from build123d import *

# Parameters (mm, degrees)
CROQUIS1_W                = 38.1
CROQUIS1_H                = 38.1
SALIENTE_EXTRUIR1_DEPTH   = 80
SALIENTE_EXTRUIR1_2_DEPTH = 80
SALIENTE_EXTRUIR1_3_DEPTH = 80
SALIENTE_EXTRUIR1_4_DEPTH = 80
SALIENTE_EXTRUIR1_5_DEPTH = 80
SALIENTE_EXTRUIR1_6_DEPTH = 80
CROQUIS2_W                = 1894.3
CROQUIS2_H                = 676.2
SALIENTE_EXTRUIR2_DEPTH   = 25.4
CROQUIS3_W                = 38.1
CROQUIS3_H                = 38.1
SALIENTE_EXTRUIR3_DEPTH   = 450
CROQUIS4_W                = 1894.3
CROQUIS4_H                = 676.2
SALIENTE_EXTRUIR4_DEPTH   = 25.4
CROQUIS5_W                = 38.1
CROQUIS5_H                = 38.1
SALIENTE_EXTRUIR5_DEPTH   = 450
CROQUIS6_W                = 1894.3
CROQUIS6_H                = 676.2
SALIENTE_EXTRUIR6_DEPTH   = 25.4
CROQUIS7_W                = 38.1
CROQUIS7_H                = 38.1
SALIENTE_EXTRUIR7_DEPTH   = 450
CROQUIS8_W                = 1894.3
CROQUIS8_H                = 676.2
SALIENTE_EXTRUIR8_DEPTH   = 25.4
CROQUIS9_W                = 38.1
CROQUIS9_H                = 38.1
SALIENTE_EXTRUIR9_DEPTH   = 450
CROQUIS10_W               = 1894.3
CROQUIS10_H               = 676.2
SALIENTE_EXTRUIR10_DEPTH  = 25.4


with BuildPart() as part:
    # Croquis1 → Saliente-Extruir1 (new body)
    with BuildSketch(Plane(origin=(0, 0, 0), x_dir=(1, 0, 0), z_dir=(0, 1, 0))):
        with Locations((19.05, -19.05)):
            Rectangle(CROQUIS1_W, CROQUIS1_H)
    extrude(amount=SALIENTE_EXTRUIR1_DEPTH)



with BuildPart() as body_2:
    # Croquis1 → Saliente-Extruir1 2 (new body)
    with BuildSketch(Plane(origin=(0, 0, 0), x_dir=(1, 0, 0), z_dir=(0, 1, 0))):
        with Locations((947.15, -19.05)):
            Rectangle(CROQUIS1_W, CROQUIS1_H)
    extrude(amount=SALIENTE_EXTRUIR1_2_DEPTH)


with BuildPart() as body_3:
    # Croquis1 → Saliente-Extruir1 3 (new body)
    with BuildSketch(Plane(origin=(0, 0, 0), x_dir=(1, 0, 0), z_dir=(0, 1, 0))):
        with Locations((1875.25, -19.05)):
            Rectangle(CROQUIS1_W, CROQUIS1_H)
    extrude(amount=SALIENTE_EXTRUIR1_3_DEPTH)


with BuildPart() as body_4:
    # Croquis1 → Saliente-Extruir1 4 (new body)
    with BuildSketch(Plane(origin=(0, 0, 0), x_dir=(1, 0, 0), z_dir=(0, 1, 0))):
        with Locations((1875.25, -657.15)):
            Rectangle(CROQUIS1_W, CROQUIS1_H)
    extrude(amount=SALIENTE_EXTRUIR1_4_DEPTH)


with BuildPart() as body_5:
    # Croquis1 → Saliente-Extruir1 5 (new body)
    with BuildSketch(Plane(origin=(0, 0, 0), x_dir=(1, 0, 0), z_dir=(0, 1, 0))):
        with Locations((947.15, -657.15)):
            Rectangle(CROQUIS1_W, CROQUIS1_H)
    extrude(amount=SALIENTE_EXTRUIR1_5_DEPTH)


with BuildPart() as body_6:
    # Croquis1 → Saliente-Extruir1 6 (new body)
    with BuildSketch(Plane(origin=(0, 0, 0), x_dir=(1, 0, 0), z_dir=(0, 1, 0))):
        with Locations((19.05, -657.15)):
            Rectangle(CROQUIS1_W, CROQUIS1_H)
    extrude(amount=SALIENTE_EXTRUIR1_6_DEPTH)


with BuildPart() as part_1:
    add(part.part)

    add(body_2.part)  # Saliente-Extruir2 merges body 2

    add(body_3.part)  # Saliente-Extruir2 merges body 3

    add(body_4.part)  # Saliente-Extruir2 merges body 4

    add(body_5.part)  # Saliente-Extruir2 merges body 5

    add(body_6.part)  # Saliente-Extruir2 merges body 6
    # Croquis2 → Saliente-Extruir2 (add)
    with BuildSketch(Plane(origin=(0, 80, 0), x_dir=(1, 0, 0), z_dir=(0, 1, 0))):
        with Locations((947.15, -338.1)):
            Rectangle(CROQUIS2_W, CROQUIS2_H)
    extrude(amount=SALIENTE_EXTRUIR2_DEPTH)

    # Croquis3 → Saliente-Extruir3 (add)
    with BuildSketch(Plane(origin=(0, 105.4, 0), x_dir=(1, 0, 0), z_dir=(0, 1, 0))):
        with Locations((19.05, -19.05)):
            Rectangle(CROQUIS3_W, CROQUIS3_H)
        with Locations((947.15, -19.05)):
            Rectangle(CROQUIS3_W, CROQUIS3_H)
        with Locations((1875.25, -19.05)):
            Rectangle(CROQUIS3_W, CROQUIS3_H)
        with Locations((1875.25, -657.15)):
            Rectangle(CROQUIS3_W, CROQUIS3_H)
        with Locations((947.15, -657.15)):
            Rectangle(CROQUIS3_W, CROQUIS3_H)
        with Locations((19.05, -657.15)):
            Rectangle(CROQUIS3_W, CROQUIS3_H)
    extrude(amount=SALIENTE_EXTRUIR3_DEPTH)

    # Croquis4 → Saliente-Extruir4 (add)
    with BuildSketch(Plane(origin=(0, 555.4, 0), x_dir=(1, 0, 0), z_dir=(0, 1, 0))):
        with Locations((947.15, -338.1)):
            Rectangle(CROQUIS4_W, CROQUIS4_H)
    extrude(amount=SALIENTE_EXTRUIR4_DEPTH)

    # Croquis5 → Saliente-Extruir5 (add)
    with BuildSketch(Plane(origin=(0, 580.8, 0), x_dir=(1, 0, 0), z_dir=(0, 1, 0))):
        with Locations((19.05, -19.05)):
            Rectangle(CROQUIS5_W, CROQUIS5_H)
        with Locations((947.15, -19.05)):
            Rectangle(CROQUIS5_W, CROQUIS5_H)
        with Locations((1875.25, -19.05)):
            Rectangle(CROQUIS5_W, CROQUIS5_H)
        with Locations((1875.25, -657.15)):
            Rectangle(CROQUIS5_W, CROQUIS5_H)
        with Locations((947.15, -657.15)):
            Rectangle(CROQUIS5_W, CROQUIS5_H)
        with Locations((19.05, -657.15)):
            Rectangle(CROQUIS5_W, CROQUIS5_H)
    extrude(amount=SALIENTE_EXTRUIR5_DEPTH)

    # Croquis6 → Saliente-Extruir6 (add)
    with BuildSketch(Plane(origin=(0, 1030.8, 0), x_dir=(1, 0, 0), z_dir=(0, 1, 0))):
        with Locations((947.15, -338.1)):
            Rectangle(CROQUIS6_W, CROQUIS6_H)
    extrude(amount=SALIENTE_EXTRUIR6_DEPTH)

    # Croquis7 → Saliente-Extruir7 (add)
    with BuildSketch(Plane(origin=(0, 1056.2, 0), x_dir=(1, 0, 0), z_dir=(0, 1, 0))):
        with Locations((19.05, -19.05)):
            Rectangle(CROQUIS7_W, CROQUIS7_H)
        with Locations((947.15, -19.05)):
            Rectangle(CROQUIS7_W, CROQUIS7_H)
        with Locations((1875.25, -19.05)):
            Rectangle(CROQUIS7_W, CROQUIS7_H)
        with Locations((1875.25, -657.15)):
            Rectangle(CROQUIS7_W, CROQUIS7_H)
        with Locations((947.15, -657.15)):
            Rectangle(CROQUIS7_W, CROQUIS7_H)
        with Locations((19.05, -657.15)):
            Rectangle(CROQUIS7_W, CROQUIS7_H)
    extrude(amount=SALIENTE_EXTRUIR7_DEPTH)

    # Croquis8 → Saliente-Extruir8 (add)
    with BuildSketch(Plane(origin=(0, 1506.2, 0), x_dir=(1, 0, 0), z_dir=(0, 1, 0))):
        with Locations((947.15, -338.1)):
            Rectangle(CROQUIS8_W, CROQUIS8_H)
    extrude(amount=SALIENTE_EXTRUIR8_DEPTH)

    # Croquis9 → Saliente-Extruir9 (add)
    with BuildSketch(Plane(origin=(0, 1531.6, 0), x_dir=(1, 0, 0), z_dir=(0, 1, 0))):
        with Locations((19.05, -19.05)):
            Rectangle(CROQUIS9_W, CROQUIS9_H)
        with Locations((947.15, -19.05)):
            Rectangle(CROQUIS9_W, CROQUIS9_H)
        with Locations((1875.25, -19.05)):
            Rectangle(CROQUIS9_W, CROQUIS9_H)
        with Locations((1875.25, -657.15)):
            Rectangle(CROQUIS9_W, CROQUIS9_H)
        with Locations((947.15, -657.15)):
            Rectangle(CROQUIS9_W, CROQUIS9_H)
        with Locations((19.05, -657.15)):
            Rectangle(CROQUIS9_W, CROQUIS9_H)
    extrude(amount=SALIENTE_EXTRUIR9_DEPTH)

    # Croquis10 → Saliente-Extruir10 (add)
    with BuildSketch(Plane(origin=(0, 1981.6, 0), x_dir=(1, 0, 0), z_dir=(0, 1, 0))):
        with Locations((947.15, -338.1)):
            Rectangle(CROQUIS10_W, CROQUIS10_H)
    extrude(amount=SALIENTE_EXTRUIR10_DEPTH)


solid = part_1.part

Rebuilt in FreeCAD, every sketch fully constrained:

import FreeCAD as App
import Part
import Sketcher


def add_polygon(sketch, points):
    """Adds a closed chain of lines whose ends are joined by coincident constraints."""
    first, n = sketch.GeometryCount, len(points)
    for a, b in zip(points, points[1:] + points[:1]):
        sketch.addGeometry(Part.LineSegment(App.Vector(*a, 0), App.Vector(*b, 0)), False)
    for i in range(n):
        sketch.addConstraint(Sketcher.Constraint("Coincident", first + i, 2, first + (i + 1) % n, 1))

doc = App.newDocument("Part")
body = doc.addObject("PartDesign::Body", "Body")

# Sketch on XZ plane
sketch1 = doc.addObject("Sketcher::SketchObject", "Sketch")
body.addObject(sketch1)
sketch1.AttachmentSupport = (doc.XZ_Plane, [""])
sketch1.MapMode = "FlatFace"
add_polygon(sketch1, [(0, 0), (0, 38), (38, 38), (38, 0)])  # lines 0-3
sketch1.addConstraint([
    Sketcher.Constraint("Vertical", 0),
    Sketcher.Constraint("Horizontal", 1),
    Sketcher.Constraint("Vertical", 2),
    Sketcher.Constraint("Horizontal", 3),
    Sketcher.Constraint("Coincident", 3, 2, -1, 1),
    Sketcher.Constraint("Equal", 3, 0),
    Sketcher.Constraint("DistanceX", 1, 1, 1, 2, 38.1),
])
pad1 = doc.addObject("PartDesign::Pad", "Pad")
body.addObject(pad1)
pad1.Profile = sketch1
pad1.Length = 80
pad1.Reversed = True
body2 = doc.addObject("PartDesign::Body", "Body001")

# Sketch on XZ plane
sketch2 = doc.addObject("Sketcher::SketchObject", "Sketch001")
body2.addObject(sketch2)
sketch2.AttachmentSupport = (doc.getObject("XZ_Plane001"), [""])
sketch2.MapMode = "FlatFace"
add_polygon(sketch2, [(928, 0), (928, 38), (966, 38), (966, 0)])  # lines 0-3
sketch2.addConstraint([
    Sketcher.Constraint("Vertical", 0),
    Sketcher.Constraint("Horizontal", 1),
    Sketcher.Constraint("Vertical", 2),
    Sketcher.Constraint("Horizontal", 3),
    Sketcher.Constraint("PointOnObject", 2, 2, -1),
    Sketcher.Constraint("Equal", 3, 0),
    Sketcher.Constraint("DistanceX", 1, 1, 1, 2, 38.1),
    Sketcher.Constraint("DistanceX", -1, 1, 0, 2, 928.1),
])
pad2 = doc.addObject("PartDesign::Pad", "Pad001")
body2.addObject(pad2)
pad2.Profile = sketch2
pad2.Length = 80
pad2.Reversed = True
body3 = doc.addObject("PartDesign::Body", "Body002")

# Sketch on XZ plane
sketch3 = doc.addObject("Sketcher::SketchObject", "Sketch002")
body3.addObject(sketch3)
sketch3.AttachmentSupport = (doc.getObject("XZ_Plane002"), [""])
sketch3.MapMode = "FlatFace"
add_polygon(sketch3, [(1856, 0), (1856, 38), (1894, 38), (1894, 0)])  # lines 0-3
sketch3.addConstraint([
    Sketcher.Constraint("Vertical", 0),
    Sketcher.Constraint("Horizontal", 1),
    Sketcher.Constraint("Vertical", 2),
    Sketcher.Constraint("Horizontal", 3),
    Sketcher.Constraint("PointOnObject", 2, 2, -1),
    Sketcher.Constraint("Equal", 3, 0),
    Sketcher.Constraint("DistanceX", 1, 1, 1, 2, 38.1),
    Sketcher.Constraint("DistanceX", -1, 1, 0, 2, 1856.2),
])
pad3 = doc.addObject("PartDesign::Pad", "Pad002")
body3.addObject(pad3)
pad3.Profile = sketch3
pad3.Length = 80
pad3.Reversed = True
body4 = doc.addObject("PartDesign::Body", "Body003")

# Sketch on XZ plane
sketch4 = doc.addObject("Sketcher::SketchObject", "Sketch003")
body4.addObject(sketch4)
sketch4.AttachmentSupport = (doc.getObject("XZ_Plane003"), [""])
sketch4.MapMode = "FlatFace"
add_polygon(sketch4, [(1856, 638), (1856, 676), (1894, 676), (1894, 638)])  # lines 0-3
sketch4.addConstraint([
    Sketcher.Constraint("Vertical", 0),
    Sketcher.Constraint("Horizontal", 1),
    Sketcher.Constraint("Vertical", 2),
    Sketcher.Constraint("Horizontal", 3),
    Sketcher.Constraint("Equal", 3, 0),
    Sketcher.Constraint("DistanceX", 1, 1, 1, 2, 38.1),
    Sketcher.Constraint("DistanceX", -1, 1, 0, 2, 1856.2),
    Sketcher.Constraint("DistanceY", -1, 1, 0, 2, 676.2),
])
pad4 = doc.addObject("PartDesign::Pad", "Pad003")
body4.addObject(pad4)
pad4.Profile = sketch4
pad4.Length = 80
pad4.Reversed = True
body5 = doc.addObject("PartDesign::Body", "Body004")

# Sketch on XZ plane
sketch5 = doc.addObject("Sketcher::SketchObject", "Sketch004")
body5.addObject(sketch5)
sketch5.AttachmentSupport = (doc.getObject("XZ_Plane004"), [""])
sketch5.MapMode = "FlatFace"
add_polygon(sketch5, [(928, 638), (928, 676), (966, 676), (966, 638)])  # lines 0-3
sketch5.addConstraint([
    Sketcher.Constraint("Vertical", 0),
    Sketcher.Constraint("Horizontal", 1),
    Sketcher.Constraint("Vertical", 2),
    Sketcher.Constraint("Horizontal", 3),
    Sketcher.Constraint("Equal", 3, 0),
    Sketcher.Constraint("DistanceX", 1, 1, 1, 2, 38.1),
    Sketcher.Constraint("DistanceX", -1, 1, 0, 2, 928.1),
    Sketcher.Constraint("DistanceY", -1, 1, 0, 2, 676.2),
])
pad5 = doc.addObject("PartDesign::Pad", "Pad004")
body5.addObject(pad5)
pad5.Profile = sketch5
pad5.Length = 80
pad5.Reversed = True
body6 = doc.addObject("PartDesign::Body", "Body005")

# Sketch on XZ plane
sketch6 = doc.addObject("Sketcher::SketchObject", "Sketch005")
body6.addObject(sketch6)
sketch6.AttachmentSupport = (doc.getObject("XZ_Plane005"), [""])
sketch6.MapMode = "FlatFace"
add_polygon(sketch6, [(0, 638), (0, 676), (38, 676), (38, 638)])  # lines 0-3
sketch6.addConstraint([
    Sketcher.Constraint("Vertical", 0),
    Sketcher.Constraint("Horizontal", 1),
    Sketcher.Constraint("Vertical", 2),
    Sketcher.Constraint("Horizontal", 3),
    Sketcher.Constraint("PointOnObject", 0, 2, -2),
    Sketcher.Constraint("Equal", 3, 0),
    Sketcher.Constraint("DistanceX", 1, 1, 1, 2, 38.1),
    Sketcher.Constraint("DistanceY", -1, 1, 0, 2, 676.2),
])
pad6 = doc.addObject("PartDesign::Pad", "Pad005")
body6.addObject(pad6)
pad6.Profile = sketch6
pad6.Length = 80
pad6.Reversed = True
body.AllowCompound = True
doc.recompute()

boolean = doc.addObject("PartDesign::Boolean", "Boolean")
body.addObject(boolean)
boolean.Type = "Fuse"
boolean.addObjects([body2])
doc.recompute()

boolean2 = doc.addObject("PartDesign::Boolean", "Boolean001")
body.addObject(boolean2)
boolean2.Type = "Fuse"
boolean2.addObjects([body3])
doc.recompute()

boolean3 = doc.addObject("PartDesign::Boolean", "Boolean002")
body.addObject(boolean3)
boolean3.Type = "Fuse"
boolean3.addObjects([body4])
doc.recompute()

boolean4 = doc.addObject("PartDesign::Boolean", "Boolean003")
body.addObject(boolean4)
boolean4.Type = "Fuse"
boolean4.addObjects([body5])
doc.recompute()

boolean5 = doc.addObject("PartDesign::Boolean", "Boolean004")
body.addObject(boolean5)
boolean5.Type = "Fuse"
boolean5.addObjects([body6])

# Sketch on XZ plane
sketch7 = doc.addObject("Sketcher::SketchObject", "Sketch006")
body.addObject(sketch7)
sketch7.AttachmentSupport = (doc.XZ_Plane, [""])
sketch7.MapMode = "FlatFace"
sketch7.AttachmentOffset = App.Placement(App.Vector(0, 0, -80), App.Rotation())
add_polygon(sketch7, [(0, 0), (0, 676), (1894, 676), (1894, 0)])  # lines 0-3
sketch7.addConstraint([
    Sketcher.Constraint("Vertical", 0),
    Sketcher.Constraint("Horizontal", 1),
    Sketcher.Constraint("Vertical", 2),
    Sketcher.Constraint("Horizontal", 3),
    Sketcher.Constraint("Coincident", 3, 2, -1, 1),
    Sketcher.Constraint("DistanceX", 1, 1, 1, 2, 1894.3),
    Sketcher.Constraint("DistanceY", 0, 1, 0, 2, 676.2),
])
pad7 = doc.addObject("PartDesign::Pad", "Pad006")
body.addObject(pad7)
pad7.Profile = sketch7
pad7.Length = 25.4
pad7.Reversed = True

# Sketch on XZ plane
sketch8 = doc.addObject("Sketcher::SketchObject", "Sketch007")
body.addObject(sketch8)
sketch8.AttachmentSupport = (doc.XZ_Plane, [""])
sketch8.MapMode = "FlatFace"
sketch8.AttachmentOffset = App.Placement(App.Vector(0, 0, -105.4), App.Rotation())
add_polygon(sketch8, [(0, 0), (0, 38), (38, 38), (38, 0)])  # lines 0-3
add_polygon(sketch8, [(928, 0), (928, 38), (966, 38), (966, 0)])  # lines 4-7
add_polygon(sketch8, [(1856, 0), (1856, 38), (1894, 38), (1894, 0)])  # lines 8-11
add_polygon(sketch8, [(1856, 638), (1856, 676), (1894, 676), (1894, 638)])  # lines 12-15
add_polygon(sketch8, [(928, 638), (928, 676), (966, 676), (966, 638)])  # lines 16-19
add_polygon(sketch8, [(0, 638), (0, 676), (38, 676), (38, 638)])  # lines 20-23
sketch8.addConstraint([
    Sketcher.Constraint("Vertical", 0),
    Sketcher.Constraint("Horizontal", 1),
    Sketcher.Constraint("Vertical", 2),
    Sketcher.Constraint("Horizontal", 3),
    Sketcher.Constraint("Vertical", 4),
    Sketcher.Constraint("Horizontal", 5),
    Sketcher.Constraint("Vertical", 6),
    Sketcher.Constraint("Horizontal", 7),
    Sketcher.Constraint("Vertical", 8),
    Sketcher.Constraint("Horizontal", 9),
    Sketcher.Constraint("Vertical", 10),
    Sketcher.Constraint("Horizontal", 11),
    Sketcher.Constraint("Vertical", 12),
    Sketcher.Constraint("Horizontal", 13),
    Sketcher.Constraint("Vertical", 14),
    Sketcher.Constraint("Horizontal", 15),
    Sketcher.Constraint("Vertical", 16),
    Sketcher.Constraint("Horizontal", 17),
    Sketcher.Constraint("Vertical", 18),
    Sketcher.Constraint("Horizontal", 19),
    Sketcher.Constraint("Vertical", 20),
    Sketcher.Constraint("Horizontal", 21),
    Sketcher.Constraint("Vertical", 22),
    Sketcher.Constraint("Horizontal", 23),
    Sketcher.Constraint("Coincident", 3, 2, -1, 1),
    Sketcher.Constraint("PointOnObject", 6, 2, -1),
    Sketcher.Constraint("PointOnObject", 10, 2, -1),
    Sketcher.Constraint("PointOnObject", 20, 2, -2),
    Sketcher.Constraint("Horizontal", 1, 2, 4, 2),
    Sketcher.Constraint("Horizontal", 5, 2, 8, 2),
    Sketcher.Constraint("Horizontal", 13, 2, 16, 2),
    Sketcher.Constraint("Horizontal", 15, 2, 18, 2),
    Sketcher.Constraint("Horizontal", 17, 2, 20, 2),
    Sketcher.Constraint("Horizontal", 19, 2, 22, 2),
    Sketcher.Constraint("Vertical", 11, 2, 12, 2),
    Sketcher.Constraint("Vertical", 10, 2, 13, 2),
    Sketcher.Constraint("Vertical", 7, 2, 16, 2),
    Sketcher.Constraint("Vertical", 6, 2, 17, 2),
    Sketcher.Constraint("Vertical", 2, 2, 21, 2),
    Sketcher.Constraint("Equal", 3, 5),
    Sketcher.Constraint("Equal", 7, 9),
    Sketcher.Constraint("Equal", 23, 0),
    Sketcher.Constraint("Equal", 10, 12),
    Sketcher.Constraint("DistanceX", 1, 1, 1, 2, 38.1),
    Sketcher.Constraint("DistanceX", 1, 2, 4, 2, 890.0),
    Sketcher.Constraint("DistanceX", 5, 2, 8, 2, 890.0),
    Sketcher.Constraint("DistanceY", 9, 2, 14, 2, 600.0),
])
pad8 = doc.addObject("PartDesign::Pad", "Pad007")
body.addObject(pad8)
pad8.Profile = sketch8
pad8.Length = 450
pad8.Reversed = True

# Sketch on XZ plane
sketch9 = doc.addObject("Sketcher::SketchObject", "Sketch008")
body.addObject(sketch9)
sketch9.AttachmentSupport = (doc.XZ_Plane, [""])
sketch9.MapMode = "FlatFace"
sketch9.AttachmentOffset = App.Placement(App.Vector(0, 0, -555.4), App.Rotation())
add_polygon(sketch9, [(0, 0), (0, 676), (1894, 676), (1894, 0)])  # lines 0-3
sketch9.addConstraint([
    Sketcher.Constraint("Vertical", 0),
    Sketcher.Constraint("Horizontal", 1),
    Sketcher.Constraint("Vertical", 2),
    Sketcher.Constraint("Horizontal", 3),
    Sketcher.Constraint("Coincident", 3, 2, -1, 1),
    Sketcher.Constraint("DistanceX", 1, 1, 1, 2, 1894.3),
    Sketcher.Constraint("DistanceY", 0, 1, 0, 2, 676.2),
])
pad9 = doc.addObject("PartDesign::Pad", "Pad008")
body.addObject(pad9)
pad9.Profile = sketch9
pad9.Length = 25.4
pad9.Reversed = True

# Sketch on XZ plane
sketch10 = doc.addObject("Sketcher::SketchObject", "Sketch009")
body.addObject(sketch10)
sketch10.AttachmentSupport = (doc.XZ_Plane, [""])
sketch10.MapMode = "FlatFace"
sketch10.AttachmentOffset = App.Placement(App.Vector(0, 0, -580.8), App.Rotation())
add_polygon(sketch10, [(0, 0), (0, 38), (38, 38), (38, 0)])  # lines 0-3
add_polygon(sketch10, [(928, 0), (928, 38), (966, 38), (966, 0)])  # lines 4-7
add_polygon(sketch10, [(1856, 0), (1856, 38), (1894, 38), (1894, 0)])  # lines 8-11
add_polygon(sketch10, [(1856, 638), (1856, 676), (1894, 676), (1894, 638)])  # lines 12-15
add_polygon(sketch10, [(928, 638), (928, 676), (966, 676), (966, 638)])  # lines 16-19
add_polygon(sketch10, [(0, 638), (0, 676), (38, 676), (38, 638)])  # lines 20-23
sketch10.addConstraint([
    Sketcher.Constraint("Vertical", 0),
    Sketcher.Constraint("Horizontal", 1),
    Sketcher.Constraint("Vertical", 2),
    Sketcher.Constraint("Horizontal", 3),
    Sketcher.Constraint("Vertical", 4),
    Sketcher.Constraint("Horizontal", 5),
    Sketcher.Constraint("Vertical", 6),
    Sketcher.Constraint("Horizontal", 7),
    Sketcher.Constraint("Vertical", 8),
    Sketcher.Constraint("Horizontal", 9),
    Sketcher.Constraint("Vertical", 10),
    Sketcher.Constraint("Horizontal", 11),
    Sketcher.Constraint("Vertical", 12),
    Sketcher.Constraint("Horizontal", 13),
    Sketcher.Constraint("Vertical", 14),
    Sketcher.Constraint("Horizontal", 15),
    Sketcher.Constraint("Vertical", 16),
    Sketcher.Constraint("Horizontal", 17),
    Sketcher.Constraint("Vertical", 18),
    Sketcher.Constraint("Horizontal", 19),
    Sketcher.Constraint("Vertical", 20),
    Sketcher.Constraint("Horizontal", 21),
    Sketcher.Constraint("Vertical", 22),
    Sketcher.Constraint("Horizontal", 23),
    Sketcher.Constraint("Coincident", 3, 2, -1, 1),
    Sketcher.Constraint("PointOnObject", 6, 2, -1),
    Sketcher.Constraint("PointOnObject", 10, 2, -1),
    Sketcher.Constraint("PointOnObject", 20, 2, -2),
    Sketcher.Constraint("Horizontal", 1, 2, 4, 2),
    Sketcher.Constraint("Horizontal", 5, 2, 8, 2),
    Sketcher.Constraint("Horizontal", 13, 2, 16, 2),
    Sketcher.Constraint("Horizontal", 15, 2, 18, 2),
    Sketcher.Constraint("Horizontal", 17, 2, 20, 2),
    Sketcher.Constraint("Horizontal", 19, 2, 22, 2),
    Sketcher.Constraint("Vertical", 11, 2, 12, 2),
    Sketcher.Constraint("Vertical", 10, 2, 13, 2),
    Sketcher.Constraint("Vertical", 7, 2, 16, 2),
    Sketcher.Constraint("Vertical", 6, 2, 17, 2),
    Sketcher.Constraint("Vertical", 2, 2, 21, 2),
    Sketcher.Constraint("Equal", 3, 5),
    Sketcher.Constraint("Equal", 7, 9),
    Sketcher.Constraint("Equal", 23, 0),
    Sketcher.Constraint("Equal", 10, 12),
    Sketcher.Constraint("DistanceX", 1, 1, 1, 2, 38.1),
    Sketcher.Constraint("DistanceX", 1, 2, 4, 2, 890.0),
    Sketcher.Constraint("DistanceX", 5, 2, 8, 2, 890.0),
    Sketcher.Constraint("DistanceY", 9, 2, 14, 2, 600.0),
])
pad10 = doc.addObject("PartDesign::Pad", "Pad009")
body.addObject(pad10)
pad10.Profile = sketch10
pad10.Length = 450
pad10.Reversed = True

# Sketch on XZ plane
sketch11 = doc.addObject("Sketcher::SketchObject", "Sketch010")
body.addObject(sketch11)
sketch11.AttachmentSupport = (doc.XZ_Plane, [""])
sketch11.MapMode = "FlatFace"
sketch11.AttachmentOffset = App.Placement(App.Vector(0, 0, -1030.8), App.Rotation())
add_polygon(sketch11, [(0, 0), (0, 676), (1894, 676), (1894, 0)])  # lines 0-3
sketch11.addConstraint([
    Sketcher.Constraint("Vertical", 0),
    Sketcher.Constraint("Horizontal", 1),
    Sketcher.Constraint("Vertical", 2),
    Sketcher.Constraint("Horizontal", 3),
    Sketcher.Constraint("Coincident", 3, 2, -1, 1),
    Sketcher.Constraint("DistanceX", 1, 1, 1, 2, 1894.3),
    Sketcher.Constraint("DistanceY", 0, 1, 0, 2, 676.2),
])
pad11 = doc.addObject("PartDesign::Pad", "Pad010")
body.addObject(pad11)
pad11.Profile = sketch11
pad11.Length = 25.4
pad11.Reversed = True

# Sketch on XZ plane
sketch12 = doc.addObject("Sketcher::SketchObject", "Sketch011")
body.addObject(sketch12)
sketch12.AttachmentSupport = (doc.XZ_Plane, [""])
sketch12.MapMode = "FlatFace"
sketch12.AttachmentOffset = App.Placement(App.Vector(0, 0, -1056.2), App.Rotation())
add_polygon(sketch12, [(0, 0), (0, 38), (38, 38), (38, 0)])  # lines 0-3
add_polygon(sketch12, [(928, 0), (928, 38), (966, 38), (966, 0)])  # lines 4-7
add_polygon(sketch12, [(1856, 0), (1856, 38), (1894, 38), (1894, 0)])  # lines 8-11
add_polygon(sketch12, [(1856, 638), (1856, 676), (1894, 676), (1894, 638)])  # lines 12-15
add_polygon(sketch12, [(928, 638), (928, 676), (966, 676), (966, 638)])  # lines 16-19
add_polygon(sketch12, [(0, 638), (0, 676), (38, 676), (38, 638)])  # lines 20-23
sketch12.addConstraint([
    Sketcher.Constraint("Vertical", 0),
    Sketcher.Constraint("Horizontal", 1),
    Sketcher.Constraint("Vertical", 2),
    Sketcher.Constraint("Horizontal", 3),
    Sketcher.Constraint("Vertical", 4),
    Sketcher.Constraint("Horizontal", 5),
    Sketcher.Constraint("Vertical", 6),
    Sketcher.Constraint("Horizontal", 7),
    Sketcher.Constraint("Vertical", 8),
    Sketcher.Constraint("Horizontal", 9),
    Sketcher.Constraint("Vertical", 10),
    Sketcher.Constraint("Horizontal", 11),
    Sketcher.Constraint("Vertical", 12),
    Sketcher.Constraint("Horizontal", 13),
    Sketcher.Constraint("Vertical", 14),
    Sketcher.Constraint("Horizontal", 15),
    Sketcher.Constraint("Vertical", 16),
    Sketcher.Constraint("Horizontal", 17),
    Sketcher.Constraint("Vertical", 18),
    Sketcher.Constraint("Horizontal", 19),
    Sketcher.Constraint("Vertical", 20),
    Sketcher.Constraint("Horizontal", 21),
    Sketcher.Constraint("Vertical", 22),
    Sketcher.Constraint("Horizontal", 23),
    Sketcher.Constraint("Coincident", 3, 2, -1, 1),
    Sketcher.Constraint("PointOnObject", 6, 2, -1),
    Sketcher.Constraint("PointOnObject", 10, 2, -1),
    Sketcher.Constraint("PointOnObject", 20, 2, -2),
    Sketcher.Constraint("Horizontal", 1, 2, 4, 2),
    Sketcher.Constraint("Horizontal", 5, 2, 8, 2),
    Sketcher.Constraint("Horizontal", 13, 2, 16, 2),
    Sketcher.Constraint("Horizontal", 15, 2, 18, 2),
    Sketcher.Constraint("Horizontal", 17, 2, 20, 2),
    Sketcher.Constraint("Horizontal", 19, 2, 22, 2),
    Sketcher.Constraint("Vertical", 11, 2, 12, 2),
    Sketcher.Constraint("Vertical", 10, 2, 13, 2),
    Sketcher.Constraint("Vertical", 7, 2, 16, 2),
    Sketcher.Constraint("Vertical", 6, 2, 17, 2),
    Sketcher.Constraint("Vertical", 2, 2, 21, 2),
    Sketcher.Constraint("Equal", 3, 5),
    Sketcher.Constraint("Equal", 7, 9),
    Sketcher.Constraint("Equal", 23, 0),
    Sketcher.Constraint("Equal", 10, 12),
    Sketcher.Constraint("DistanceX", 1, 1, 1, 2, 38.1),
    Sketcher.Constraint("DistanceX", 1, 2, 4, 2, 890.0),
    Sketcher.Constraint("DistanceX", 5, 2, 8, 2, 890.0),
    Sketcher.Constraint("DistanceY", 9, 2, 14, 2, 600.0),
])
pad12 = doc.addObject("PartDesign::Pad", "Pad011")
body.addObject(pad12)
pad12.Profile = sketch12
pad12.Length = 450
pad12.Reversed = True

# Sketch on XZ plane
sketch13 = doc.addObject("Sketcher::SketchObject", "Sketch012")
body.addObject(sketch13)
sketch13.AttachmentSupport = (doc.XZ_Plane, [""])
sketch13.MapMode = "FlatFace"
sketch13.AttachmentOffset = App.Placement(App.Vector(0, 0, -1506.2), App.Rotation())
add_polygon(sketch13, [(0, 0), (0, 676), (1894, 676), (1894, 0)])  # lines 0-3
sketch13.addConstraint([
    Sketcher.Constraint("Vertical", 0),
    Sketcher.Constraint("Horizontal", 1),
    Sketcher.Constraint("Vertical", 2),
    Sketcher.Constraint("Horizontal", 3),
    Sketcher.Constraint("Coincident", 3, 2, -1, 1),
    Sketcher.Constraint("DistanceX", 1, 1, 1, 2, 1894.3),
    Sketcher.Constraint("DistanceY", 0, 1, 0, 2, 676.2),
])
pad13 = doc.addObject("PartDesign::Pad", "Pad012")
body.addObject(pad13)
pad13.Profile = sketch13
pad13.Length = 25.4
pad13.Reversed = True

# Sketch on XZ plane
sketch14 = doc.addObject("Sketcher::SketchObject", "Sketch013")
body.addObject(sketch14)
sketch14.AttachmentSupport = (doc.XZ_Plane, [""])
sketch14.MapMode = "FlatFace"
sketch14.AttachmentOffset = App.Placement(App.Vector(0, 0, -1531.6), App.Rotation())
add_polygon(sketch14, [(0, 0), (0, 38), (38, 38), (38, 0)])  # lines 0-3
add_polygon(sketch14, [(928, 0), (928, 38), (966, 38), (966, 0)])  # lines 4-7
add_polygon(sketch14, [(1856, 0), (1856, 38), (1894, 38), (1894, 0)])  # lines 8-11
add_polygon(sketch14, [(1856, 638), (1856, 676), (1894, 676), (1894, 638)])  # lines 12-15
add_polygon(sketch14, [(928, 638), (928, 676), (966, 676), (966, 638)])  # lines 16-19
add_polygon(sketch14, [(0, 638), (0, 676), (38, 676), (38, 638)])  # lines 20-23
sketch14.addConstraint([
    Sketcher.Constraint("Vertical", 0),
    Sketcher.Constraint("Horizontal", 1),
    Sketcher.Constraint("Vertical", 2),
    Sketcher.Constraint("Horizontal", 3),
    Sketcher.Constraint("Vertical", 4),
    Sketcher.Constraint("Horizontal", 5),
    Sketcher.Constraint("Vertical", 6),
    Sketcher.Constraint("Horizontal", 7),
    Sketcher.Constraint("Vertical", 8),
    Sketcher.Constraint("Horizontal", 9),
    Sketcher.Constraint("Vertical", 10),
    Sketcher.Constraint("Horizontal", 11),
    Sketcher.Constraint("Vertical", 12),
    Sketcher.Constraint("Horizontal", 13),
    Sketcher.Constraint("Vertical", 14),
    Sketcher.Constraint("Horizontal", 15),
    Sketcher.Constraint("Vertical", 16),
    Sketcher.Constraint("Horizontal", 17),
    Sketcher.Constraint("Vertical", 18),
    Sketcher.Constraint("Horizontal", 19),
    Sketcher.Constraint("Vertical", 20),
    Sketcher.Constraint("Horizontal", 21),
    Sketcher.Constraint("Vertical", 22),
    Sketcher.Constraint("Horizontal", 23),
    Sketcher.Constraint("Coincident", 3, 2, -1, 1),
    Sketcher.Constraint("PointOnObject", 6, 2, -1),
    Sketcher.Constraint("PointOnObject", 10, 2, -1),
    Sketcher.Constraint("PointOnObject", 20, 2, -2),
    Sketcher.Constraint("Horizontal", 1, 2, 4, 2),
    Sketcher.Constraint("Horizontal", 5, 2, 8, 2),
    Sketcher.Constraint("Horizontal", 13, 2, 16, 2),
    Sketcher.Constraint("Horizontal", 15, 2, 18, 2),
    Sketcher.Constraint("Horizontal", 17, 2, 20, 2),
    Sketcher.Constraint("Horizontal", 19, 2, 22, 2),
    Sketcher.Constraint("Vertical", 11, 2, 12, 2),
    Sketcher.Constraint("Vertical", 10, 2, 13, 2),
    Sketcher.Constraint("Vertical", 7, 2, 16, 2),
    Sketcher.Constraint("Vertical", 6, 2, 17, 2),
    Sketcher.Constraint("Vertical", 2, 2, 21, 2),
    Sketcher.Constraint("Equal", 3, 5),
    Sketcher.Constraint("Equal", 7, 9),
    Sketcher.Constraint("Equal", 23, 0),
    Sketcher.Constraint("Equal", 10, 12),
    Sketcher.Constraint("DistanceX", 1, 1, 1, 2, 38.1),
    Sketcher.Constraint("DistanceX", 1, 2, 4, 2, 890.0),
    Sketcher.Constraint("DistanceX", 5, 2, 8, 2, 890.0),
    Sketcher.Constraint("DistanceY", 9, 2, 14, 2, 600.0),
])
pad14 = doc.addObject("PartDesign::Pad", "Pad013")
body.addObject(pad14)
pad14.Profile = sketch14
pad14.Length = 450
pad14.Reversed = True

# Sketch on XZ plane
sketch15 = doc.addObject("Sketcher::SketchObject", "Sketch014")
body.addObject(sketch15)
sketch15.AttachmentSupport = (doc.XZ_Plane, [""])
sketch15.MapMode = "FlatFace"
sketch15.AttachmentOffset = App.Placement(App.Vector(0, 0, -1981.6), App.Rotation())
add_polygon(sketch15, [(0, 0), (0, 676), (1894, 676), (1894, 0)])  # lines 0-3
sketch15.addConstraint([
    Sketcher.Constraint("Vertical", 0),
    Sketcher.Constraint("Horizontal", 1),
    Sketcher.Constraint("Vertical", 2),
    Sketcher.Constraint("Horizontal", 3),
    Sketcher.Constraint("Coincident", 3, 2, -1, 1),
    Sketcher.Constraint("DistanceX", 1, 1, 1, 2, 1894.3),
    Sketcher.Constraint("DistanceY", 0, 1, 0, 2, 676.2),
])
pad15 = doc.addObject("PartDesign::Pad", "Pad014")
body.addObject(pad15)
pad15.Profile = sketch15
pad15.Length = 25.4
pad15.Reversed = True

doc.recompute()
